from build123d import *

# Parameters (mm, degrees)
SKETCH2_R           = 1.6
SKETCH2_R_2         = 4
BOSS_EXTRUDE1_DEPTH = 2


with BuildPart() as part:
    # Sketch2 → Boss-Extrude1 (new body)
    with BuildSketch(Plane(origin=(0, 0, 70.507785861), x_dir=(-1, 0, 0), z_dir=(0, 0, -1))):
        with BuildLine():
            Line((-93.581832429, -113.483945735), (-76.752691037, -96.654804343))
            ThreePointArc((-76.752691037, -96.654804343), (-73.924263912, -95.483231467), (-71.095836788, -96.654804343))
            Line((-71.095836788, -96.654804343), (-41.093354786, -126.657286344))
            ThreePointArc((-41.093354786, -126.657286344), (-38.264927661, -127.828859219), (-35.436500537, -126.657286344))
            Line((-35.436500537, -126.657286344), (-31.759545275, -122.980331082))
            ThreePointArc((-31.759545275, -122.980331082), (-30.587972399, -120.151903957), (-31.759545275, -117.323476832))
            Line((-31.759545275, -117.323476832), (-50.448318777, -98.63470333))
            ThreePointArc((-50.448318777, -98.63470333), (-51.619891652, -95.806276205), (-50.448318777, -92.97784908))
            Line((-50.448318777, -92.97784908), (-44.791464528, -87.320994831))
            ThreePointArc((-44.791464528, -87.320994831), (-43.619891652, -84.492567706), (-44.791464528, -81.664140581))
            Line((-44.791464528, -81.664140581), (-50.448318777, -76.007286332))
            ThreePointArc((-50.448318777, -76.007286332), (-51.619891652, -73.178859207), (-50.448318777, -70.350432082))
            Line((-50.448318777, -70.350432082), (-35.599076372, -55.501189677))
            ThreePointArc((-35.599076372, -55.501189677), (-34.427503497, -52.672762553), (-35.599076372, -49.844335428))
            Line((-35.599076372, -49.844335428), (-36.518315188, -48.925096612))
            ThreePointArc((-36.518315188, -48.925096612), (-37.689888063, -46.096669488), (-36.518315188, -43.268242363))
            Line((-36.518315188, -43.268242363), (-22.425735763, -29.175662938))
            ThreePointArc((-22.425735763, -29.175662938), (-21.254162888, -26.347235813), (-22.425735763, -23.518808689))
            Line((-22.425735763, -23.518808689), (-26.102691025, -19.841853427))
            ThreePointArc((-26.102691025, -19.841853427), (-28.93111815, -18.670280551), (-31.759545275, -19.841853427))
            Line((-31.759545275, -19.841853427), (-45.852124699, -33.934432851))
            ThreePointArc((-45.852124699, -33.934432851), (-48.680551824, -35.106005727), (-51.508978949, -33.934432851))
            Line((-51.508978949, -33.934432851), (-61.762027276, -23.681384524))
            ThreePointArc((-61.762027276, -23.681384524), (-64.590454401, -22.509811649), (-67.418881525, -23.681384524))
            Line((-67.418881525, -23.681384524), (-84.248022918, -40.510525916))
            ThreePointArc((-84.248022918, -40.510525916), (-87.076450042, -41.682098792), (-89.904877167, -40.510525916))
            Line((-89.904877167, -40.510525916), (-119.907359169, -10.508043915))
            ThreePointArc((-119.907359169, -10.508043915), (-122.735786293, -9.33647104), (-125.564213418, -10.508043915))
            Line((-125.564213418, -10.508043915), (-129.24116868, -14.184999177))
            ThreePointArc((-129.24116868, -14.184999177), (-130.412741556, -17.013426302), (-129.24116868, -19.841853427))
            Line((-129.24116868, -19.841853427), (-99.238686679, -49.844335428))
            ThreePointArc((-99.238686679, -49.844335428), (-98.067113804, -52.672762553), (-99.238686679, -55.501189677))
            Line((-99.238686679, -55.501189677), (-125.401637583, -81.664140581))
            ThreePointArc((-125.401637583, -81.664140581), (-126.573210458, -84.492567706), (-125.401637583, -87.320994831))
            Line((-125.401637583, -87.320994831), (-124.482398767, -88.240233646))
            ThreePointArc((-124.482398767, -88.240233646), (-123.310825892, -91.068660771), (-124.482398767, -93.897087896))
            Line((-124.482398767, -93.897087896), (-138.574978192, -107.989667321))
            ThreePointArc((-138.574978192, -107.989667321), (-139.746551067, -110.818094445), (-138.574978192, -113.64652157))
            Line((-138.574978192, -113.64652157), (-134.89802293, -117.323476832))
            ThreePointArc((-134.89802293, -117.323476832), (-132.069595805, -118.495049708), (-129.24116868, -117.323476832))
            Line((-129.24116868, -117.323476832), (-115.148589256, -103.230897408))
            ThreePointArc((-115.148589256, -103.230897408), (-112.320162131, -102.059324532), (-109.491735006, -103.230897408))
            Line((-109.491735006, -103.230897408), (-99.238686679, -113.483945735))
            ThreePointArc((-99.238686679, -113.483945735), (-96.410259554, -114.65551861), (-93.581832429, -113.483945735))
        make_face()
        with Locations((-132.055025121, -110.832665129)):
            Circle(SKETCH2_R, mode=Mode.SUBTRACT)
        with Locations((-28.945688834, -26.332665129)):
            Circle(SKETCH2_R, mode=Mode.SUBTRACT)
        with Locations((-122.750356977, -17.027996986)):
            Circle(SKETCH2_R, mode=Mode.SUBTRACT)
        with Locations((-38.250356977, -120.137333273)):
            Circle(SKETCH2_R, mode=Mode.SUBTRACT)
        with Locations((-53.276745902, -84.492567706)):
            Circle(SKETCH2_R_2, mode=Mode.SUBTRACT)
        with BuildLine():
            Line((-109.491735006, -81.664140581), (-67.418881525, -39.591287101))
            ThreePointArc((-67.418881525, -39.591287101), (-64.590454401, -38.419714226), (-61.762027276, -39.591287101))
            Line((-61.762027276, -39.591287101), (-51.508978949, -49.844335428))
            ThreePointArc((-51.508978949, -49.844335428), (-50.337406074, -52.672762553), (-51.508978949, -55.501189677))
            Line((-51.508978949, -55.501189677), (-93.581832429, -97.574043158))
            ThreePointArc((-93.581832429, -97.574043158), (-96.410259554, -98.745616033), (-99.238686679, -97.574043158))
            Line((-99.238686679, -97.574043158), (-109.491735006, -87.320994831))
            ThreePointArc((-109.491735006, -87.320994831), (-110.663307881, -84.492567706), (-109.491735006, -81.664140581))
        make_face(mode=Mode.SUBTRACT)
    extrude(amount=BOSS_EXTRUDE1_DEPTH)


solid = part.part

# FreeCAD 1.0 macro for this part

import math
import FreeCAD as App
import Part
import Sketcher
Q = App.Units.Quantity

doc = App.newDocument("Part")
body = doc.addObject("PartDesign::Body", "Body")

sketch1 = body.newObject("Sketcher::SketchObject", "Sketch")
sketch1.AttachmentSupport = (doc.getObject("XY_Plane"), [""])
sketch1.MapMode = "FlatFace"
sketch1.AttachmentOffset = App.Placement(App.Vector(0, 0, 70.507786), App.Rotation())
sketch1.addGeometry(Part.LineSegment(App.Vector(93.581832, -113.483946, 0), App.Vector(76.752691, -96.654804, 0)), False)
sketch1.addGeometry(Part.ArcOfCircle(Part.Circle(App.Vector(73.924264, -99.483231, 0), App.Vector(0, 0, 1), 4), math.radians(45), math.radians(135)), False)
sketch1.addGeometry(Part.LineSegment(App.Vector(71.095837, -96.654804, 0), App.Vector(41.093355, -126.657286, 0)), False)
sketch1.addGeometry(Part.ArcOfCircle(Part.Circle(App.Vector(38.264928, -123.828859, 0), App.Vector(0, 0, 1), 4), math.radians(-135), math.radians(-45)), False)
sketch1.addGeometry(Part.LineSegment(App.Vector(35.436501, -126.657286, 0), App.Vector(31.759545, -122.980331, 0)), False)
sketch1.addGeometry(Part.ArcOfCircle(Part.Circle(App.Vector(34.587972, -120.151904, 0), App.Vector(0, 0, 1), 4), math.radians(135), math.radians(225)), False)
sketch1.addGeometry(Part.LineSegment(App.Vector(31.759545, -117.323477, 0), App.Vector(50.448319, -98.634703, 0)), False)
sketch1.addGeometry(Part.ArcOfCircle(Part.Circle(App.Vector(47.619892, -95.806276, 0), App.Vector(0, 0, 1), 4), math.radians(-45), math.radians(45)), False)
sketch1.addGeometry(Part.LineSegment(App.Vector(50.448319, -92.977849, 0), App.Vector(44.791465, -87.320995, 0)), False)
sketch1.addGeometry(Part.ArcOfCircle(Part.Circle(App.Vector(47.619892, -84.492568, 0), App.Vector(0, 0, 1), 4), math.radians(135), math.radians(225)), False)
sketch1.addGeometry(Part.LineSegment(App.Vector(44.791465, -81.664141, 0), App.Vector(50.448319, -76.007286, 0)), False)
sketch1.addGeometry(Part.ArcOfCircle(Part.Circle(App.Vector(47.619892, -73.178859, 0), App.Vector(0, 0, 1), 4), math.radians(-45), math.radians(45)), False)
sketch1.addGeometry(Part.LineSegment(App.Vector(50.448319, -70.350432, 0), App.Vector(35.599076, -55.50119, 0)), False)
sketch1.addGeometry(Part.ArcOfCircle(Part.Circle(App.Vector(38.427503, -52.672763, 0), App.Vector(0, 0, 1), 4), math.radians(135), math.radians(225)), False)
sketch1.addGeometry(Part.LineSegment(App.Vector(35.599076, -49.844335, 0), App.Vector(36.518315, -48.925097, 0)), False)
sketch1.addGeometry(Part.ArcOfCircle(Part.Circle(App.Vector(33.689888, -46.096669, 0), App.Vector(0, 0, 1), 4), math.radians(-45), math.radians(45)), False)
sketch1.addGeometry(Part.LineSegment(App.Vector(36.518315, -43.268242, 0), App.Vector(22.425736, -29.175663, 0)), False)
sketch1.addGeometry(Part.ArcOfCircle(Part.Circle(App.Vector(25.254163, -26.347236, 0), App.Vector(0, 0, 1), 4), math.radians(135), math.radians(225)), False)
sketch1.addGeometry(Part.LineSegment(App.Vector(22.425736, -23.518809, 0), App.Vector(26.102691, -19.841853, 0)), False)
sketch1.addGeometry(Part.ArcOfCircle(Part.Circle(App.Vector(28.931118, -22.670281, 0), App.Vector(0, 0, 1), 4), math.radians(45), math.radians(135)), False)
sketch1.addGeometry(Part.LineSegment(App.Vector(31.759545, -19.841853, 0), App.Vector(45.852125, -33.934433, 0)), False)
sketch1.addGeometry(Part.ArcOfCircle(Part.Circle(App.Vector(48.680552, -31.106006, 0), App.Vector(0, 0, 1), 4), math.radians(-135), math.radians(-45)), False)
sketch1.addGeometry(Part.LineSegment(App.Vector(51.508979, -33.934433, 0), App.Vector(61.762027, -23.681385, 0)), False)
sketch1.addGeometry(Part.ArcOfCircle(Part.Circle(App.Vector(64.590454, -26.509812, 0), App.Vector(0, 0, 1), 4), math.radians(45), math.radians(135)), False)
sketch1.addGeometry(Part.LineSegment(App.Vector(67.418882, -23.681385, 0), App.Vector(84.248023, -40.510526, 0)), False)
sketch1.addGeometry(Part.ArcOfCircle(Part.Circle(App.Vector(87.07645, -37.682099, 0), App.Vector(0, 0, 1), 4), math.radians(-135), math.radians(-45)), False)
sketch1.addGeometry(Part.LineSegment(App.Vector(89.904877, -40.510526, 0), App.Vector(119.907359, -10.508044, 0)), False)
sketch1.addGeometry(Part.ArcOfCircle(Part.Circle(App.Vector(122.735786, -13.336471, 0), App.Vector(0, 0, 1), 4), math.radians(45), math.radians(135)), False)
sketch1.addGeometry(Part.LineSegment(App.Vector(125.564213, -10.508044, 0), App.Vector(129.241169, -14.184999, 0)), False)
sketch1.addGeometry(Part.ArcOfCircle(Part.Circle(App.Vector(126.412742, -17.013426, 0), App.Vector(0, 0, 1), 4), math.radians(-45), math.radians(45)), False)
sketch1.addGeometry(Part.LineSegment(App.Vector(129.241169, -19.841853, 0), App.Vector(99.238687, -49.844335, 0)), False)
sketch1.addGeometry(Part.ArcOfCircle(Part.Circle(App.Vector(102.067114, -52.672763, 0), App.Vector(0, 0, 1), 4), math.radians(135), math.radians(225)), False)
sketch1.addGeometry(Part.LineSegment(App.Vector(99.238687, -55.50119, 0), App.Vector(125.401638, -81.664141, 0)), False)
sketch1.addGeometry(Part.ArcOfCircle(Part.Circle(App.Vector(122.57321, -84.492568, 0), App.Vector(0, 0, 1), 4), math.radians(-45), math.radians(45)), False)
sketch1.addGeometry(Part.LineSegment(App.Vector(125.401638, -87.320995, 0), App.Vector(124.482399, -88.240234, 0)), False)
sketch1.addGeometry(Part.ArcOfCircle(Part.Circle(App.Vector(127.310826, -91.068661, 0), App.Vector(0, 0, 1), 4), math.radians(135), math.radians(225)), False)
sketch1.addGeometry(Part.LineSegment(App.Vector(124.482399, -93.897088, 0), App.Vector(138.574978, -107.989667, 0)), False)
sketch1.addGeometry(Part.ArcOfCircle(Part.Circle(App.Vector(135.746551, -110.818094, 0), App.Vector(0, 0, 1), 4), math.radians(-45), math.radians(45)), False)
sketch1.addGeometry(Part.LineSegment(App.Vector(138.574978, -113.646522, 0), App.Vector(134.898023, -117.323477, 0)), False)
sketch1.addGeometry(Part.ArcOfCircle(Part.Circle(App.Vector(132.069596, -114.49505, 0), App.Vector(0, 0, 1), 4), math.radians(-135), math.radians(-45)), False)
sketch1.addGeometry(Part.LineSegment(App.Vector(129.241169, -117.323477, 0), App.Vector(115.148589, -103.230897, 0)), False)
sketch1.addGeometry(Part.ArcOfCircle(Part.Circle(App.Vector(112.320162, -106.059325, 0), App.Vector(0, 0, 1), 4), math.radians(45), math.radians(135)), False)
sketch1.addGeometry(Part.LineSegment(App.Vector(109.491735, -103.230897, 0), App.Vector(99.238687, -113.483946, 0)), False)
sketch1.addGeometry(Part.ArcOfCircle(Part.Circle(App.Vector(96.41026, -110.655519, 0), App.Vector(0, 0, 1), 4), math.radians(-135), math.radians(-45)), False)
sketch1.addGeometry(Part.Circle(App.Vector(132.055025, -110.832665, 0), App.Vector(0, 0, 1), 1.6), False)
sketch1.addGeometry(Part.Circle(App.Vector(38.250357, -120.137333, 0), App.Vector(0, 0, 1), 1.6), False)
sketch1.addGeometry(Part.Circle(App.Vector(53.276746, -84.492568, 0), App.Vector(0, 0, 1), 4), False)
sketch1.addGeometry(Part.ArcOfCircle(Part.Circle(App.Vector(106.663308, -84.492568, 0), App.Vector(0, 0, 1), 4), math.radians(-45), math.radians(45)), False)
sketch1.addGeometry(Part.LineSegment(App.Vector(109.491735, -81.664141, 0), App.Vector(67.418882, -39.591287, 0)), False)
sketch1.addGeometry(Part.ArcOfCircle(Part.Circle(App.Vector(64.590454, -42.419714, 0), App.Vector(0, 0, 1), 4), math.radians(45), math.radians(135)), False)
sketch1.addGeometry(Part.LineSegment(App.Vector(61.762027, -39.591287, 0), App.Vector(51.508979, -49.844335, 0)), False)
sketch1.addGeometry(Part.ArcOfCircle(Part.Circle(App.Vector(54.337406, -52.672763, 0), App.Vector(0, 0, 1), 4), math.radians(135), math.radians(225)), False)
sketch1.addGeometry(Part.LineSegment(App.Vector(51.508979, -55.50119, 0), App.Vector(93.581832, -97.574043, 0)), False)
sketch1.addGeometry(Part.ArcOfCircle(Part.Circle(App.Vector(96.41026, -94.745616, 0), App.Vector(0, 0, 1), 4), math.radians(-135), math.radians(-45)), False)
sketch1.addGeometry(Part.LineSegment(App.Vector(99.238687, -97.574043, 0), App.Vector(109.491735, -87.320995, 0)), False)
sketch1.addGeometry(Part.Circle(App.Vector(122.750357, -17.027997, 0), App.Vector(0, 0, 1), 1.6), False)
sketch1.addGeometry(Part.Circle(App.Vector(28.945689, -26.332665, 0), App.Vector(0, 0, 1), 1.6), False)
sketch1.addConstraint(Sketcher.Constraint("Tangent", 0, 2, 1, 1))
sketch1.addConstraint(Sketcher.Constraint("Tangent", 1, 2, 2, 1))
sketch1.addConstraint(Sketcher.Constraint("Tangent", 2, 2, 3, 2))
sketch1.addConstraint(Sketcher.Constraint("Tangent", 3, 1, 4, 1))
sketch1.addConstraint(Sketcher.Constraint("Tangent", 4, 2, 5, 2))
sketch1.addConstraint(Sketcher.Constraint("Tangent", 5, 1, 6, 1))
sketch1.addConstraint(Sketcher.Constraint("Tangent", 6, 2, 7, 1))
sketch1.addConstraint(Sketcher.Constraint("Tangent", 7, 2, 8, 1))
sketch1.addConstraint(Sketcher.Constraint("Tangent", 8, 2, 9, 2))
sketch1.addConstraint(Sketcher.Constraint("Tangent", 9, 1, 10, 1))
sketch1.addConstraint(Sketcher.Constraint("Tangent", 10, 2, 11, 1))
sketch1.addConstraint(Sketcher.Constraint("Tangent", 11, 2, 12, 1))
sketch1.addConstraint(Sketcher.Constraint("Tangent", 12, 2, 13, 2))
sketch1.addConstraint(Sketcher.Constraint("Tangent", 13, 1, 14, 1))
sketch1.addConstraint(Sketcher.Constraint("Tangent", 14, 2, 15, 1))
sketch1.addConstraint(Sketcher.Constraint("Tangent", 15, 2, 16, 1))
sketch1.addConstraint(Sketcher.Constraint("Tangent", 16, 2, 17, 2))
sketch1.addConstraint(Sketcher.Constraint("Tangent", 17, 1, 18, 1))
sketch1.addConstraint(Sketcher.Constraint("Tangent", 18, 2, 19, 2))
sketch1.addConstraint(Sketcher.Constraint("Tangent", 19, 1, 20, 1))
sketch1.addConstraint(Sketcher.Constraint("Tangent", 20, 2, 21, 1))
sketch1.addConstraint(Sketcher.Constraint("Tangent", 21, 2, 22, 1))
sketch1.addConstraint(Sketcher.Constraint("Tangent", 22, 2, 23, 2))
sketch1.addConstraint(Sketcher.Constraint("Tangent", 23, 1, 24, 1))
sketch1.addConstraint(Sketcher.Constraint("Tangent", 24, 2, 25, 1))
sketch1.addConstraint(Sketcher.Constraint("Tangent", 25, 2, 26, 1))
sketch1.addConstraint(Sketcher.Constraint("Tangent", 26, 2, 27, 2))
sketch1.addConstraint(Sketcher.Constraint("Tangent", 27, 1, 28, 1))
sketch1.addConstraint(Sketcher.Constraint("Tangent", 28, 2, 29, 2))
sketch1.addConstraint(Sketcher.Constraint("Tangent", 29, 1, 30, 1))
sketch1.addConstraint(Sketcher.Constraint("Tangent", 30, 2, 31, 1))
sketch1.addConstraint(Sketcher.Constraint("Tangent", 31, 2, 32, 1))
sketch1.addConstraint(Sketcher.Constraint("Tangent", 32, 2, 33, 2))
sketch1.addConstraint(Sketcher.Constraint("Tangent", 33, 1, 34, 1))
sketch1.addConstraint(Sketcher.Constraint("Tangent", 34, 2, 35, 1))
sketch1.addConstraint(Sketcher.Constraint("Tangent", 35, 2, 36, 1))
sketch1.addConstraint(Sketcher.Constraint("Tangent", 36, 2, 37, 2))
sketch1.addConstraint(Sketcher.Constraint("Tangent", 37, 1, 38, 1))
sketch1.addConstraint(Sketcher.Constraint("Tangent", 38, 2, 39, 2))
sketch1.addConstraint(Sketcher.Constraint("Tangent", 39, 1, 40, 1))
sketch1.addConstraint(Sketcher.Constraint("Tangent", 40, 2, 41, 1))
sketch1.addConstraint(Sketcher.Constraint("Tangent", 41, 2, 42, 1))
sketch1.addConstraint(Sketcher.Constraint("Tangent", 42, 2, 43, 2))
sketch1.addConstraint(Sketcher.Constraint("Tangent", 43, 1, 0, 1))
sketch1.addConstraint(Sketcher.Constraint("Tangent", 47, 2, 48, 1))
sketch1.addConstraint(Sketcher.Constraint("Tangent", 48, 2, 49, 1))
sketch1.addConstraint(Sketcher.Constraint("Tangent", 49, 2, 50, 1))
sketch1.addConstraint(Sketcher.Constraint("Tangent", 50, 2, 51, 1))
sketch1.addConstraint(Sketcher.Constraint("Tangent", 51, 2, 52, 1))
sketch1.addConstraint(Sketcher.Constraint("Tangent", 52, 2, 53, 1))
sketch1.addConstraint(Sketcher.Constraint("Tangent", 53, 2, 54, 1))
sketch1.addConstraint(Sketcher.Constraint("Tangent", 54, 2, 47, 1))
sketch1.addConstraint(Sketcher.Constraint("Equal", 1, 3))
sketch1.addConstraint(Sketcher.Constraint("Equal", 3, 5))
sketch1.addConstraint(Sketcher.Constraint("Equal", 5, 7))
sketch1.addConstraint(Sketcher.Constraint("Equal", 7, 9))
sketch1.addConstraint(Sketcher.Constraint("Equal", 9, 11))
sketch1.addConstraint(Sketcher.Constraint("Equal", 11, 13))
sketch1.addConstraint(Sketcher.Constraint("Equal", 13, 15))
sketch1.addConstraint(Sketcher.Constraint("Equal", 15, 17))
sketch1.addConstraint(Sketcher.Constraint("Equal", 17, 19))
sketch1.addConstraint(Sketcher.Constraint("Equal", 19, 21))
sketch1.addConstraint(Sketcher.Constraint("Equal", 21, 23))
sketch1.addConstraint(Sketcher.Constraint("Equal", 23, 25))
sketch1.addConstraint(Sketcher.Constraint("Equal", 25, 27))
sketch1.addConstraint(Sketcher.Constraint("Equal", 27, 29))
sketch1.addConstraint(Sketcher.Constraint("Equal", 29, 31))
sketch1.addConstraint(Sketcher.Constraint("Equal", 31, 33))
sketch1.addConstraint(Sketcher.Constraint("Equal", 33, 35))
sketch1.addConstraint(Sketcher.Constraint("Equal", 35, 37))
sketch1.addConstraint(Sketcher.Constraint("Equal", 37, 39))
sketch1.addConstraint(Sketcher.Constraint("Equal", 39, 41))
sketch1.addConstraint(Sketcher.Constraint("Equal", 41, 43))
sketch1.addConstraint(Sketcher.Constraint("Equal", 44, 45))
sketch1.addConstraint(Sketcher.Constraint("Equal", 43, 46))
sketch1.addConstraint(Sketcher.Constraint("Equal", 46, 47))
sketch1.addConstraint(Sketcher.Constraint("Equal", 47, 49))
sketch1.addConstraint(Sketcher.Constraint("Equal", 49, 51))
sketch1.addConstraint(Sketcher.Constraint("Equal", 51, 53))
sketch1.addConstraint(Sketcher.Constraint("Equal", 45, 55))
sketch1.addConstraint(Sketcher.Constraint("Equal", 55, 56))
sketch1.addConstraint(Sketcher.Constraint("Perpendicular", 0, 2))
sketch1.addConstraint(Sketcher.Constraint("Perpendicular", 2, 4))
sketch1.addConstraint(Sketcher.Constraint("Perpendicular", 4, 6))
sketch1.addConstraint(Sketcher.Constraint("Perpendicular", 6, 8))
sketch1.addConstraint(Sketcher.Constraint("Perpendicular", 8, 10))
sketch1.addConstraint(Sketcher.Constraint("Perpendicular", 10, 12))
sketch1.addConstraint(Sketcher.Constraint("Perpendicular", 12, 14))
sketch1.addConstraint(Sketcher.Constraint("Perpendicular", 14, 16))
sketch1.addConstraint(Sketcher.Constraint("Perpendicular", 16, 18))
sketch1.addConstraint(Sketcher.Constraint("Perpendicular", 18, 20))
sketch1.addConstraint(Sketcher.Constraint("Perpendicular", 20, 22))
sketch1.addConstraint(Sketcher.Constraint("Perpendicular", 22, 24))
sketch1.addConstraint(Sketcher.Constraint("Perpendicular", 24, 26))
sketch1.addConstraint(Sketcher.Constraint("Perpendicular", 26, 28))
sketch1.addConstraint(Sketcher.Constraint("Perpendicular", 28, 30))
sketch1.addConstraint(Sketcher.Constraint("Perpendicular", 30, 32))
sketch1.addConstraint(Sketcher.Constraint("Perpendicular", 32, 34))
sketch1.addConstraint(Sketcher.Constraint("Perpendicular", 34, 36))
sketch1.addConstraint(Sketcher.Constraint("Perpendicular", 36, 38))
sketch1.addConstraint(Sketcher.Constraint("Perpendicular", 38, 40))
sketch1.addConstraint(Sketcher.Constraint("Perpendicular", 40, 42))
sketch1.addConstraint(Sketcher.Constraint("Perpendicular", 42, 48))
sketch1.addConstraint(Sketcher.Constraint("Perpendicular", 48, 50))
sketch1.addConstraint(Sketcher.Constraint("Perpendicular", 50, 52))
sketch1.addConstraint(Sketcher.Constraint("Perpendicular", 52, 54))
sketch1.addConstraint(Sketcher.Constraint("Horizontal", 13, 3, 31, 3))
sketch1.addConstraint(Sketcher.Constraint("Horizontal", 9, 3, 33, 3))
sketch1.addConstraint(Sketcher.Constraint("Horizontal", 33, 3, 46, 3))
sketch1.addConstraint(Sketcher.Constraint("Horizontal", 46, 3, 47, 3))
sketch1.addConstraint(Sketcher.Constraint("Horizontal", 31, 3, 51, 3))
sketch1.addConstraint(Sketcher.Constraint("Horizontal", 0, 2, 1, 2))
sketch1.addConstraint(Sketcher.Constraint("Horizontal", 19, 1, 29, 1))
sketch1.addConstraint(Sketcher.Constraint("Horizontal", 5, 1, 38, 2))
sketch1.addConstraint(Sketcher.Constraint("Vertical", 7, 3, 9, 3))
sketch1.addConstraint(Sketcher.Constraint("Vertical", 9, 3, 11, 3))
sketch1.addConstraint(Sketcher.Constraint("Vertical", 23, 3, 49, 3))
sketch1.addConstraint(Sketcher.Constraint("Vertical", 43, 3, 53, 3))
sketch1.addConstraint(Sketcher.Constraint("Vertical", 5, 1, 19, 1))
sketch1.addConstraint(Sketcher.Constraint("Vertical", 29, 1, 39, 1))
sketch1.addConstraint(Sketcher.Constraint("Vertical", 31, 2, 42, 2))
sketch1.addConstraint(Sketcher.Constraint("Vertical", 41, 2, 47, 2))
sketch1.addConstraint(Sketcher.Constraint("Vertical", 21, 2, 50, 2))
sketch1.addConstraint(Sketcher.Constraint("Equal", 4, 18))
sketch1.addConstraint(Sketcher.Constraint("Equal", 16, 20))
sketch1.addConstraint(Sketcher.Constraint("Equal", 0, 24))
sketch1.addConstraint(Sketcher.Constraint("Equal", 18, 28))
sketch1.addConstraint(Sketcher.Constraint("Equal", 26, 30))
sketch1.addConstraint(Sketcher.Constraint("Equal", 14, 34))
sketch1.addConstraint(Sketcher.Constraint("Diameter", 46, Q("8 mm")))
sketch1.addConstraint(Sketcher.Constraint("Diameter", 44, Q("3.2 mm")))
sketch1.addConstraint(Sketcher.Constraint("Distance", 12, Q("21 mm")))
sketch1.addConstraint(Sketcher.Constraint("Distance", 0, Q("23.8 mm")))
sketch1.addConstraint(Sketcher.Constraint("DistanceY", 28, 2, -1, 1, Q("14.184999 mm")))
sketch1.addConstraint(Sketcher.Constraint("DistanceY", 25, 3, -1, 1, Q("37.682099 mm")))
sketch1.addConstraint(Sketcher.Constraint("DistanceX", -1, 1, 3, 1, Q("35.436501 mm")))
sketch1.addConstraint(Sketcher.Constraint("DistanceX", -1, 1, 56, 3, Q("28.945689 mm")))
sketch1.addConstraint(Sketcher.Constraint("DistanceX", -1, 1, 44, 3, Q("132.055025 mm")))
sketch1.addConstraint(Sketcher.Constraint("DistanceY", 44, 3, -1, 1, Q("110.832665 mm")))
sketch1.addConstraint(Sketcher.Constraint("DistanceX", -1, 1, 45, 3, Q("38.250357 mm")))
sketch1.addConstraint(Sketcher.Constraint("DistanceY", 45, 3, -1, 1, Q("120.137333 mm")))
sketch1.addConstraint(Sketcher.Constraint("DistanceX", -1, 1, 46, 3, Q("53.276746 mm")))
sketch1.addConstraint(Sketcher.Constraint("DistanceX", -1, 1, 55, 3, Q("122.750357 mm")))
sketch1.addConstraint(Sketcher.Constraint("DistanceY", 55, 3, -1, 1, Q("17.027997 mm")))
sketch1.addConstraint(Sketcher.Constraint("DistanceY", 56, 3, -1, 1, Q("26.332665 mm")))
pad1 = body.newObject("PartDesign::Pad", "Pad")
pad1.Profile = sketch1
pad1.Length = 2
pad1.Reversed = True

doc.recompute()
